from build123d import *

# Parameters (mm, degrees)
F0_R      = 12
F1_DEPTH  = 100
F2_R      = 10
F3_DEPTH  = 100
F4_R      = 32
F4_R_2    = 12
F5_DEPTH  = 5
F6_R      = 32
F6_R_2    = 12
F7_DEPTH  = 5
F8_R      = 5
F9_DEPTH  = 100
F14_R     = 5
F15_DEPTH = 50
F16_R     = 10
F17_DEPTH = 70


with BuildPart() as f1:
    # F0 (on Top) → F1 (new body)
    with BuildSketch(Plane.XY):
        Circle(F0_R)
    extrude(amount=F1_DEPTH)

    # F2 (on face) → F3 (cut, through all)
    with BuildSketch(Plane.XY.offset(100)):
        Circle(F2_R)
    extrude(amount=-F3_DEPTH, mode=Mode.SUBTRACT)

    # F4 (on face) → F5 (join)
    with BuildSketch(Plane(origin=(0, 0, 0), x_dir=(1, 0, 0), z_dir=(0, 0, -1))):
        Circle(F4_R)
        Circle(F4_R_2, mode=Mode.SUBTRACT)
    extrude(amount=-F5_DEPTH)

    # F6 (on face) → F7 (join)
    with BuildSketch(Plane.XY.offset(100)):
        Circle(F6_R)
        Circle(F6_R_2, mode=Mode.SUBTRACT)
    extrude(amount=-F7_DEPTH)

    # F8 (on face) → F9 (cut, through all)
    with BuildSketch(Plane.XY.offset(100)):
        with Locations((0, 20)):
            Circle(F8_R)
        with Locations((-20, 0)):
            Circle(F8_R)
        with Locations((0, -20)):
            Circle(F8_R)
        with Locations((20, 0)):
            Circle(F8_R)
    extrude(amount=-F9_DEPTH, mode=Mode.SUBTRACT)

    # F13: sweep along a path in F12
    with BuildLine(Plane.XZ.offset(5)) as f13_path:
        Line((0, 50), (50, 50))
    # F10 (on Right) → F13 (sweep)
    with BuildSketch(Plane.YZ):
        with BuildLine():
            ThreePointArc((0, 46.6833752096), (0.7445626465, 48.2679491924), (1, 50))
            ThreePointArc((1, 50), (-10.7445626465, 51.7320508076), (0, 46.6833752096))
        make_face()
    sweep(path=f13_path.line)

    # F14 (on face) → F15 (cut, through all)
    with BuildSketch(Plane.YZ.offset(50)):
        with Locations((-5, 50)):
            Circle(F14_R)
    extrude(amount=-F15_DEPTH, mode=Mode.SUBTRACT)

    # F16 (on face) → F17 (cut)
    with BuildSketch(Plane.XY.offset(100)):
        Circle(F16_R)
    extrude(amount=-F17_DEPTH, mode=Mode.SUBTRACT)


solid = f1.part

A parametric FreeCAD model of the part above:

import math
import FreeCAD as App
import Part
import Sketcher

V = App.Vector
Q = App.Units.Quantity

doc = App.newDocument("Part")
body = doc.addObject("PartDesign::Body", "Body")

sketch1 = doc.addObject("Sketcher::SketchObject", "Sketch")
body.addObject(sketch1)
sketch1.AttachmentSupport = (doc.XY_Plane, [""])
sketch1.MapMode = "FlatFace"
sketch1.addGeometry(Part.Circle(V(0, 0, 0), V(0, 0, 1), 12), False)
sketch1.addConstraint([
    Sketcher.Constraint("Coincident", 0, 3, -1, 1),
    Sketcher.Constraint("Diameter", 0, Q("24 mm")),
])
pad1 = doc.addObject("PartDesign::Pad", "Pad")
body.addObject(pad1)
pad1.Profile = sketch1
pad1.Length = 100

sketch2 = doc.addObject("Sketcher::SketchObject", "Sketch001")
body.addObject(sketch2)
sketch2.AttachmentSupport = (doc.XY_Plane, [""])
sketch2.MapMode = "FlatFace"
sketch2.AttachmentOffset = App.Placement(V(0, 0, 100), App.Rotation())
sketch2.addGeometry(Part.Circle(V(0, 0, 0), V(0, 0, 1), 10), False)
sketch2.addConstraint([
    Sketcher.Constraint("Coincident", 0, 3, -1, 1),
    Sketcher.Constraint("Diameter", 0, Q("20 mm")),
])
pocket1 = doc.addObject("PartDesign::Pocket", "Pocket")
body.addObject(pocket1)
pocket1.Profile = sketch2
pocket1.Type = "ThroughAll"

sketch3 = doc.addObject("Sketcher::SketchObject", "Sketch002")
body.addObject(sketch3)
sketch3.AttachmentSupport = (doc.XY_Plane, [""])
sketch3.MapMode = "FlatFace"
sketch3.addGeometry([
    Part.Circle(V(0, 0, 0), V(0, 0, 1), 32),
    Part.Circle(V(0, 0, 0), V(0, 0, 1), 12),
], False)
sketch3.addConstraint([
    Sketcher.Constraint("Coincident", 0, 3, -1, 1),
    Sketcher.Constraint("Coincident", 1, 3, -1, 1),
    Sketcher.Constraint("Diameter", 0, Q("64 mm")),
    Sketcher.Constraint("Diameter", 1, Q("24 mm")),
])
pad2 = doc.addObject("PartDesign::Pad", "Pad001")
body.addObject(pad2)
pad2.Profile = sketch3
pad2.Length = 5

sketch4 = doc.addObject("Sketcher::SketchObject", "Sketch003")
body.addObject(sketch4)
sketch4.AttachmentSupport = (doc.XY_Plane, [""])
sketch4.MapMode = "FlatFace"
sketch4.AttachmentOffset = App.Placement(V(0, 0, 100), App.Rotation())
sketch4.addGeometry([
    Part.Circle(V(0, 0, 0), V(0, 0, 1), 32),
    Part.Circle(V(0, 0, 0), V(0, 0, 1), 12),
], False)
sketch4.addConstraint([
    Sketcher.Constraint("Coincident", 0, 3, -1, 1),
    Sketcher.Constraint("Coincident", 1, 3, -1, 1),
    Sketcher.Constraint("Diameter", 0, Q("64 mm")),
    Sketcher.Constraint("Diameter", 1, Q("24 mm")),
])
pad3 = doc.addObject("PartDesign::Pad", "Pad002")
body.addObject(pad3)
pad3.Profile = sketch4
pad3.Length = 5
pad3.Reversed = True

sketch5 = doc.addObject("Sketcher::SketchObject", "Sketch004")
body.addObject(sketch5)
sketch5.AttachmentSupport = (doc.XY_Plane, [""])
sketch5.MapMode = "FlatFace"
sketch5.AttachmentOffset = App.Placement(V(0, 0, 100), App.Rotation())
sketch5.addGeometry([
    Part.Circle(V(0, 20, 0), V(0, 0, 1), 5),
    Part.Circle(V(-20, 0, 0), V(0, 0, 1), 5),
    Part.Circle(V(0, -20, 0), V(0, 0, 1), 5),
    Part.Circle(V(20, 0, 0), V(0, 0, 1), 5),
], False)
sketch5.addConstraint([
    Sketcher.Constraint("Equal", 0, 1),
    Sketcher.Constraint("Equal", 1, 2),
    Sketcher.Constraint("Equal", 2, 3),
    Sketcher.Constraint("Symmetric", 0, 3, 2, 3, -1, 1),
    Sketcher.Constraint("Symmetric", 1, 3, 3, 3, -1, 1),
    Sketcher.Constraint("PointOnObject", 0, 3, -2),
    Sketcher.Constraint("PointOnObject", 1, 3, -1),
    Sketcher.Constraint("Diameter", 0, Q("10 mm")),
    Sketcher.Constraint("DistanceY", -1, 1, 0, 3, Q("20 mm")),
    Sketcher.Constraint("DistanceX", 1, 3, -1, 1, Q("20 mm")),
])
pocket2 = doc.addObject("PartDesign::Pocket", "Pocket001")
body.addObject(pocket2)
pocket2.Profile = sketch5
pocket2.Type = "ThroughAll"

sketch6 = doc.addObject("Sketcher::SketchObject", "Sketch005")
body.addObject(sketch6)
sketch6.AttachmentSupport = (doc.YZ_Plane, [""])
sketch6.MapMode = "FlatFace"
sketch6.addGeometry([
    Part.ArcOfCircle(Part.Circle(V(-5, 50, 0), V(0, 0, 1), 6), math.radians(-33.55731), math.radians(0)),
    Part.ArcOfCircle(Part.Circle(V(-5, 50, 0), V(0, 0, 1), 6), math.radians(0), math.radians(326.44269)),
], False)
sketch6.addConstraint([
    Sketcher.Constraint("Tangent", 0, 1, 1, 2),
    Sketcher.Constraint("Coincident", 1, 1, 0, 2),
    Sketcher.Constraint("PointOnObject", 0, 1, -2),
    Sketcher.Constraint("Horizontal", 0, 3, 1, 1),
    Sketcher.Constraint("Radius", 0, Q("6 mm")),
    Sketcher.Constraint("DistanceX", 0, 3, -1, 1, Q("5 mm")),
    Sketcher.Constraint("DistanceY", -1, 1, 0, 3, Q("50 mm")),
])

sketch7 = doc.addObject("Sketcher::SketchObject", "Sketch006")
body.addObject(sketch7)
sketch7.AttachmentSupport = (doc.XY_Plane, [""])
sketch7.MapMode = "FlatFace"
sketch7.AttachmentOffset = App.Placement(V(0, 0, 50), App.Rotation())
sketch7.addGeometry(Part.LineSegment(V(0, -5, 0), V(50, -5, 0)), False)
sketch7.addConstraint([
    Sketcher.Constraint("Horizontal", 0),
    Sketcher.Constraint("PointOnObject", 0, 1, -2),
    Sketcher.Constraint("DistanceX", 0, 1, 0, 2, Q("50 mm")),
    Sketcher.Constraint("DistanceY", 0, 1, -1, 1, Q("5 mm")),
])
doc.recompute()

additivepipe = doc.addObject("PartDesign::AdditivePipe", "AdditivePipe")
body.addObject(additivepipe)
additivepipe.Profile = sketch6
additivepipe.Spine = (sketch7, ["Edge1"])

sketch8 = doc.addObject("Sketcher::SketchObject", "Sketch007")
body.addObject(sketch8)
sketch8.AttachmentSupport = (doc.YZ_Plane, [""])
sketch8.MapMode = "FlatFace"
sketch8.AttachmentOffset = App.Placement(V(0, 0, 50), App.Rotation())
sketch8.addGeometry(Part.Circle(V(-5, 50, 0), V(0, 0, 1), 5), False)
sketch8.addConstraint([
    Sketcher.Constraint("Diameter", 0, Q("10 mm")),
    Sketcher.Constraint("DistanceX", 0, 3, -1, 1, Q("5 mm")),
    Sketcher.Constraint("DistanceY", -1, 1, 0, 3, Q("50 mm")),
])
pocket3 = doc.addObject("PartDesign::Pocket", "Pocket002")
body.addObject(pocket3)
pocket3.Profile = sketch8
pocket3.Length = 50

sketch9 = doc.addObject("Sketcher::SketchObject", "Sketch008")
body.addObject(sketch9)
sketch9.AttachmentSupport = (doc.XY_Plane, [""])
sketch9.MapMode = "FlatFace"
sketch9.AttachmentOffset = App.Placement(V(0, 0, 100), App.Rotation())
sketch9.addGeometry(Part.Circle(V(0, 0, 0), V(0, 0, 1), 10), False)
sketch9.addConstraint([
    Sketcher.Constraint("Coincident", 0, 3, -1, 1),
    Sketcher.Constraint("Diameter", 0, Q("20 mm")),
])
pocket4 = doc.addObject("PartDesign::Pocket", "Pocket003")
body.addObject(pocket4)
pocket4.Profile = sketch9
pocket4.Length = 70

doc.recompute()
